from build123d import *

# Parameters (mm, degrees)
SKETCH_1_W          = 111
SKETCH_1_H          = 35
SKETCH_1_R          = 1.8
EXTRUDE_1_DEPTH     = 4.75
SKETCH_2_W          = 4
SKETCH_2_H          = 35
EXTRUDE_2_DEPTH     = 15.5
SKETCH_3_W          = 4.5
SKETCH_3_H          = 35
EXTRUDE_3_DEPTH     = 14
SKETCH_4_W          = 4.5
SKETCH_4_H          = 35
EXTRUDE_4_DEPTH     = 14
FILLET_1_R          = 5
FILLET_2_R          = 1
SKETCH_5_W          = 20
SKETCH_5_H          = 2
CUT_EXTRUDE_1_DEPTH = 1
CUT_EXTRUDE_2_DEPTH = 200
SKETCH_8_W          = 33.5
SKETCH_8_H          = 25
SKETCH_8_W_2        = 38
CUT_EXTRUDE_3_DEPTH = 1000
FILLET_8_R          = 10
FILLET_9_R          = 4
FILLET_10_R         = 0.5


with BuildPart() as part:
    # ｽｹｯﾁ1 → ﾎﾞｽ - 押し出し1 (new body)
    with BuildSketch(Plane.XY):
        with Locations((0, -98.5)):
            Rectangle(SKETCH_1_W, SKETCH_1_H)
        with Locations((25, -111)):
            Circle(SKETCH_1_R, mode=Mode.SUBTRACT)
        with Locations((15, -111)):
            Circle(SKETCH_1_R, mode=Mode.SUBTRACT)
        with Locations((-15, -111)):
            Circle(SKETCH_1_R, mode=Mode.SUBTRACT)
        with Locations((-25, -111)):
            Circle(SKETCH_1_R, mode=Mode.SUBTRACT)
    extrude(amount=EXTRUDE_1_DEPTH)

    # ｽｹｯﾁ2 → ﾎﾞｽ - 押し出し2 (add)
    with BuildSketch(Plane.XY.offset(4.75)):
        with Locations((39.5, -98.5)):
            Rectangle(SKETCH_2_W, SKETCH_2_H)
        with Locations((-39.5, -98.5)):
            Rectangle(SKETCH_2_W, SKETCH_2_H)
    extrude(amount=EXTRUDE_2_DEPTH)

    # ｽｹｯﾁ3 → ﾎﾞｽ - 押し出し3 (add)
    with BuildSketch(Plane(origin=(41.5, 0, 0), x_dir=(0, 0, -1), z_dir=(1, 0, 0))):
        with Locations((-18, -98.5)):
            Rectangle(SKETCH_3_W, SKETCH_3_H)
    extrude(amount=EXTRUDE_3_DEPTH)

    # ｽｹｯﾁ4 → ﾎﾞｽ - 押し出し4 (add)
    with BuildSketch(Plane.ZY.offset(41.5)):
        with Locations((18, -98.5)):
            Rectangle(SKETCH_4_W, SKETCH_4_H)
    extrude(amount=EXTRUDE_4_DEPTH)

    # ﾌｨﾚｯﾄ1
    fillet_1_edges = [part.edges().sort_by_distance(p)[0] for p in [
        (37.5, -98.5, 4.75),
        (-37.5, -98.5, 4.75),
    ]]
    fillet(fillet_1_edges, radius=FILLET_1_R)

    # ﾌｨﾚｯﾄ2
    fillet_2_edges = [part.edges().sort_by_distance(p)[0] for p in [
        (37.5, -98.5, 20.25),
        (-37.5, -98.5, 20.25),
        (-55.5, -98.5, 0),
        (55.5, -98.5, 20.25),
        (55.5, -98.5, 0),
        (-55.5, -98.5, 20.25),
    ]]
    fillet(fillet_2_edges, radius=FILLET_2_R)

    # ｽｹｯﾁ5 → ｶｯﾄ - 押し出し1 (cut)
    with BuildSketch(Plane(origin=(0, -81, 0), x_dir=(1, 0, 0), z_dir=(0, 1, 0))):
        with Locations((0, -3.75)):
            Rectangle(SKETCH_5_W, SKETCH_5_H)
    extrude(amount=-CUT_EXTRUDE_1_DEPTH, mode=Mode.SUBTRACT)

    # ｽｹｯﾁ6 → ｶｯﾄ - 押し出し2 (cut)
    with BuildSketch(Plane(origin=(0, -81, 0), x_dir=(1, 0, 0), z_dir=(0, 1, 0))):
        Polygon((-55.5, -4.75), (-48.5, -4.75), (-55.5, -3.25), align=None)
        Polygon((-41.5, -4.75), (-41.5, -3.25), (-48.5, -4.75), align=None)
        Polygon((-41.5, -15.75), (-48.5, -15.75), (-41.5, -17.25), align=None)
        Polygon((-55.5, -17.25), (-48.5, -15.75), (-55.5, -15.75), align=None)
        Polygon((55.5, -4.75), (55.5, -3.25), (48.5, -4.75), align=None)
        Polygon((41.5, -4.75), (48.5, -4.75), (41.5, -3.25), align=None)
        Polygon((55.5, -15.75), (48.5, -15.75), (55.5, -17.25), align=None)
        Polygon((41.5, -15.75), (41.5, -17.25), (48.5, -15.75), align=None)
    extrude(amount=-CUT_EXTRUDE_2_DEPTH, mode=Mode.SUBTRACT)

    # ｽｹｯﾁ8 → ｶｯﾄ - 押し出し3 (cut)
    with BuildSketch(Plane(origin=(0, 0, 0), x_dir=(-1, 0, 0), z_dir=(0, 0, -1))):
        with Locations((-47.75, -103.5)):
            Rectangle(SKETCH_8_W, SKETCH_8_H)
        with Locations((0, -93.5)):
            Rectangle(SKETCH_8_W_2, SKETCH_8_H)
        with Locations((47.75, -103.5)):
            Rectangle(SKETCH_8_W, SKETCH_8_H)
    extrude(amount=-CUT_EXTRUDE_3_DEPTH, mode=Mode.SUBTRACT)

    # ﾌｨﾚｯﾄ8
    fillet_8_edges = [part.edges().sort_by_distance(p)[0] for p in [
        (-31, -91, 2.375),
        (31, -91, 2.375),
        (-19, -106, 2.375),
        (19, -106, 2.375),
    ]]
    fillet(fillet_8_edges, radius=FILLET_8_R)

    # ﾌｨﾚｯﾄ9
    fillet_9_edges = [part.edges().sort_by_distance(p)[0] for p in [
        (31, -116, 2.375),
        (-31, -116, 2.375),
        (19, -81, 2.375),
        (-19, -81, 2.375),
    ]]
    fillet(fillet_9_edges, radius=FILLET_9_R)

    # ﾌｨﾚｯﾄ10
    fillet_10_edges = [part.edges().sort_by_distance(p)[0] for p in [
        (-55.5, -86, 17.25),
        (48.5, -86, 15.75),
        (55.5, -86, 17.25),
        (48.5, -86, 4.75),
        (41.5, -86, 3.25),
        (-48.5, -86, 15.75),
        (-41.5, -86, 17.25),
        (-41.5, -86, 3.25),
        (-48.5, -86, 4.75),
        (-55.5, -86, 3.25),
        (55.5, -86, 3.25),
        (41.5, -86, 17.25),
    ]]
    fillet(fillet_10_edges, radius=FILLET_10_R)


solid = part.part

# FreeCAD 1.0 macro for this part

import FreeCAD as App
import Part
import Sketcher


def edges_at(feature, points):
    """Names of the edges that pass closest to the given points."""
    edges = feature.Shape.Edges
    near = lambda p: min(range(len(edges)), key=lambda i: edges[i].distToShape(Part.Vertex(*p))[0])
    return sorted({f"Edge{near(p) + 1}" for p in points})


def add_polygon(sketch, points):
    """Adds a closed chain of lines whose ends are joined by coincident constraints."""
    first, n = sketch.GeometryCount, len(points)
    for a, b in zip(points, points[1:] + points[:1]):
        sketch.addGeometry(Part.LineSegment(App.Vector(*a, 0), App.Vector(*b, 0)), False)
    for i in range(n):
        sketch.addConstraint(Sketcher.Constraint("Coincident", first + i, 2, first + (i + 1) % n, 1))

doc = App.newDocument("Part")
body = doc.addObject("PartDesign::Body", "Body")

# Sketch on XY plane
sketch1 = body.newObject("Sketcher::SketchObject", "Sketch")
sketch1.AttachmentSupport = (doc.getObject("XY_Plane"), [""])
sketch1.MapMode = "FlatFace"
add_polygon(sketch1, [(-55.5, -81), (-55.5, -116), (55.5, -116), (55.5, -81)])  # lines 0-3
sketch1.addGeometry(Part.Circle(App.Vector(-25, -111, 0), App.Vector(0, 0, 1), 1.8), False)  # 4
sketch1.addGeometry(Part.Circle(App.Vector(-15, -111, 0), App.Vector(0, 0, 1), 1.8), False)  # 5
sketch1.addGeometry(Part.Circle(App.Vector(15, -111, 0), App.Vector(0, 0, 1), 1.8), False)  # 6
sketch1.addGeometry(Part.Circle(App.Vector(25, -111, 0), App.Vector(0, 0, 1), 1.8), False)  # 7
sketch1.addConstraint(Sketcher.Constraint("Vertical", 0))
sketch1.addConstraint(Sketcher.Constraint("Horizontal", 1))
sketch1.addConstraint(Sketcher.Constraint("Vertical", 2))
sketch1.addConstraint(Sketcher.Constraint("Horizontal", 3))
sketch1.addConstraint(Sketcher.Constraint("Equal", 4, 5))
sketch1.addConstraint(Sketcher.Constraint("Equal", 5, 6))
sketch1.addConstraint(Sketcher.Constraint("Equal", 6, 7))
sketch1.addConstraint(Sketcher.Constraint("Symmetric", 5, 3, 6, 3, -2))
sketch1.addConstraint(Sketcher.Constraint("Symmetric", 4, 3, 7, 3, -2))
sketch1.addConstraint(Sketcher.Constraint("Horizontal", 4, 3, 5, 3))
sketch1.addConstraint(Sketcher.Constraint("Diameter", 4, 3.6))
sketch1.addConstraint(Sketcher.Constraint("DistanceX", 1, 1, 1, 2, 111.0))
sketch1.addConstraint(Sketcher.Constraint("DistanceY", 0, 2, 0, 1, 35.0))
sketch1.addConstraint(Sketcher.Constraint("DistanceX", 4, 3, -1, 1, 25.0))
sketch1.addConstraint(Sketcher.Constraint("DistanceY", 4, 3, -1, 1, 111.0))
sketch1.addConstraint(Sketcher.Constraint("DistanceX", 5, 3, -1, 1, 15.0))
sketch1.addConstraint(Sketcher.Constraint("DistanceY", 0, 2, -1, 1, 116.0))
sketch1.addConstraint(Sketcher.Constraint("DistanceX", 0, 2, -1, 1, 55.5))
pad1 = body.newObject("PartDesign::Pad", "Pad")
pad1.Profile = sketch1
pad1.Length = 4.75

# Sketch on XY plane
sketch2 = body.newObject("Sketcher::SketchObject", "Sketch001")
sketch2.AttachmentSupport = (doc.getObject("XY_Plane"), [""])
sketch2.MapMode = "FlatFace"
sketch2.AttachmentOffset = App.Placement(App.Vector(0, 0, 4.75), App.Rotation())
add_polygon(sketch2, [(37.5, -81), (37.5, -116), (41.5, -116), (41.5, -81)])  # lines 0-3
add_polygon(sketch2, [(-41.5, -81), (-41.5, -116), (-37.5, -116), (-37.5, -81)])  # lines 4-7
sketch2.addConstraint(Sketcher.Constraint("Vertical", 0))
sketch2.addConstraint(Sketcher.Constraint("Horizontal", 1))
sketch2.addConstraint(Sketcher.Constraint("Vertical", 2))
sketch2.addConstraint(Sketcher.Constraint("Horizontal", 3))
sketch2.addConstraint(Sketcher.Constraint("Vertical", 4))
sketch2.addConstraint(Sketcher.Constraint("Horizontal", 5))
sketch2.addConstraint(Sketcher.Constraint("Vertical", 6))
sketch2.addConstraint(Sketcher.Constraint("Horizontal", 7))
sketch2.addConstraint(Sketcher.Constraint("Symmetric", 1, 2, 4, 2, -2))
sketch2.addConstraint(Sketcher.Constraint("Symmetric", 3, 2, 6, 2, -2))
sketch2.addConstraint(Sketcher.Constraint("DistanceX", 1, 1, 1, 2, 4.0))
sketch2.addConstraint(Sketcher.Constraint("DistanceY", 0, 2, 0, 1, 35.0))
sketch2.addConstraint(Sketcher.Constraint("DistanceY", 0, 2, -1, 1, 116.0))
sketch2.addConstraint(Sketcher.Constraint("DistanceX", 4, 2, 0, 2, 79.0))
pad2 = body.newObject("PartDesign::Pad", "Pad001")
pad2.Profile = sketch2
pad2.Length = 15.5

# Sketch on YZ plane
sketch3 = body.newObject("Sketcher::SketchObject", "Sketch002")
sketch3.AttachmentSupport = (doc.getObject("YZ_Plane"), [""])
sketch3.MapMode = "FlatFace"
sketch3.AttachmentOffset = App.Placement(App.Vector(0, 0, 41.5), App.Rotation())
add_polygon(sketch3, [(-81, 20.25), (-116, 20.25), (-116, 15.75), (-81, 15.75)])  # lines 0-3
sketch3.addConstraint(Sketcher.Constraint("Horizontal", 0))
sketch3.addConstraint(Sketcher.Constraint("Vertical", 1))
sketch3.addConstraint(Sketcher.Constraint("Horizontal", 2))
sketch3.addConstraint(Sketcher.Constraint("Vertical", 3))
sketch3.addConstraint(Sketcher.Constraint("DistanceX", 0, 2, 0, 1, 35.0))
sketch3.addConstraint(Sketcher.Constraint("DistanceY", 1, 2, 1, 1, 4.5))
sketch3.addConstraint(Sketcher.Constraint("DistanceX", 0, 2, -1, 1, 116.0))
sketch3.addConstraint(Sketcher.Constraint("DistanceY", -1, 1, 0, 2, 20.25))
pad3 = body.newObject("PartDesign::Pad", "Pad002")
pad3.Profile = sketch3
pad3.Length = 14

# Sketch on YZ plane
sketch4 = body.newObject("Sketcher::SketchObject", "Sketch003")
sketch4.AttachmentSupport = (doc.getObject("YZ_Plane"), [""])
sketch4.MapMode = "FlatFace"
sketch4.AttachmentOffset = App.Placement(App.Vector(0, 0, -41.5), App.Rotation())
add_polygon(sketch4, [(-81, 15.75), (-116, 15.75), (-116, 20.25), (-81, 20.25)])  # lines 0-3
sketch4.addConstraint(Sketcher.Constraint("Horizontal", 0))
sketch4.addConstraint(Sketcher.Constraint("Vertical", 1))
sketch4.addConstraint(Sketcher.Constraint("Horizontal", 2))
sketch4.addConstraint(Sketcher.Constraint("Vertical", 3))
sketch4.addConstraint(Sketcher.Constraint("DistanceX", 0, 2, 0, 1, 35.0))
sketch4.addConstraint(Sketcher.Constraint("DistanceY", 1, 1, 1, 2, 4.5))
sketch4.addConstraint(Sketcher.Constraint("DistanceX", 0, 2, -1, 1, 116.0))
sketch4.addConstraint(Sketcher.Constraint("DistanceY", -1, 1, 0, 2, 15.75))
pad4 = body.newObject("PartDesign::Pad", "Pad003")
pad4.Profile = sketch4
pad4.Length = 14
pad4.Reversed = True
doc.recompute()

fillet = body.newObject("PartDesign::Fillet", "Fillet")
fillet.Base = (pad4, edges_at(pad4, [(37.5, -98.5, 4.75), (-37.5, -98.5, 4.75)]))
fillet.Radius = 5
doc.recompute()

fillet2 = body.newObject("PartDesign::Fillet", "Fillet001")
fillet2.Base = (fillet, edges_at(fillet, [
    (37.5, -98.5, 20.25),
    (-37.5, -98.5, 20.25),
    (-55.5, -98.5, 0),
    (55.5, -98.5, 20.25),
    (55.5, -98.5, 0),
    (-55.5, -98.5, 20.25),
]))
fillet2.Radius = 1

# Sketch on XZ plane
sketch5 = body.newObject("Sketcher::SketchObject", "Sketch004")
sketch5.AttachmentSupport = (doc.getObject("XZ_Plane"), [""])
sketch5.MapMode = "FlatFace"
sketch5.AttachmentOffset = App.Placement(App.Vector(0, 0, 81), App.Rotation())
add_polygon(sketch5, [(-10, 2.75), (-10, 4.75), (10, 4.75), (10, 2.75)])  # lines 0-3
sketch5.addConstraint(Sketcher.Constraint("Vertical", 0))
sketch5.addConstraint(Sketcher.Constraint("Horizontal", 1))
sketch5.addConstraint(Sketcher.Constraint("Vertical", 2))
sketch5.addConstraint(Sketcher.Constraint("Horizontal", 3))
sketch5.addConstraint(Sketcher.Constraint("DistanceX", 1, 1, 1, 2, 20.0))
sketch5.addConstraint(Sketcher.Constraint("DistanceY", 0, 1, 0, 2, 2.0))
sketch5.addConstraint(Sketcher.Constraint("DistanceX", 0, 2, -1, 1, 10.0))
sketch5.addConstraint(Sketcher.Constraint("DistanceY", -1, 1, 0, 2, 4.75))
pocket1 = body.newObject("PartDesign::Pocket", "Pocket")
pocket1.Profile = sketch5
pocket1.Length = 1
pocket1.Reversed = True

# Sketch on XZ plane
sketch6 = body.newObject("Sketcher::SketchObject", "Sketch005")
sketch6.AttachmentSupport = (doc.getObject("XZ_Plane"), [""])
sketch6.MapMode = "FlatFace"
sketch6.AttachmentOffset = App.Placement(App.Vector(0, 0, 81), App.Rotation())
add_polygon(sketch6, [(-55.5, 4.75), (-48.5, 4.75), (-55.5, 3.25)])  # lines 0-2
add_polygon(sketch6, [(-41.5, 4.75), (-41.5, 3.25), (-48.5, 4.75)])  # lines 3-5
add_polygon(sketch6, [(-41.5, 15.75), (-48.5, 15.75), (-41.5, 17.25)])  # lines 6-8
add_polygon(sketch6, [(-55.5, 17.25), (-48.5, 15.75), (-55.5, 15.75)])  # lines 9-11
add_polygon(sketch6, [(55.5, 4.75), (55.5, 3.25), (48.5, 4.75)])  # lines 12-14
add_polygon(sketch6, [(41.5, 4.75), (48.5, 4.75), (41.5, 3.25)])  # lines 15-17
add_polygon(sketch6, [(55.5, 15.75), (48.5, 15.75), (55.5, 17.25)])  # lines 18-20
add_polygon(sketch6, [(41.5, 15.75), (41.5, 17.25), (48.5, 15.75)])  # lines 21-23
sketch6.addConstraint(Sketcher.Constraint("Horizontal", 0))
sketch6.addConstraint(Sketcher.Constraint("Vertical", 2))
sketch6.addConstraint(Sketcher.Constraint("Vertical", 3))
sketch6.addConstraint(Sketcher.Constraint("Horizontal", 5))
sketch6.addConstraint(Sketcher.Constraint("Horizontal", 6))
sketch6.addConstraint(Sketcher.Constraint("Vertical", 8))
sketch6.addConstraint(Sketcher.Constraint("Horizontal", 10))
sketch6.addConstraint(Sketcher.Constraint("Vertical", 11))
sketch6.addConstraint(Sketcher.Constraint("Vertical", 12))
sketch6.addConstraint(Sketcher.Constraint("Horizontal", 14))
sketch6.addConstraint(Sketcher.Constraint("Horizontal", 15))
sketch6.addConstraint(Sketcher.Constraint("Vertical", 17))
sketch6.addConstraint(Sketcher.Constraint("Horizontal", 18))
sketch6.addConstraint(Sketcher.Constraint("Vertical", 20))
sketch6.addConstraint(Sketcher.Constraint("Vertical", 21))
sketch6.addConstraint(Sketcher.Constraint("Horizontal", 23))
sketch6.addConstraint(Sketcher.Constraint("Coincident", 4, 2, 0, 2))
sketch6.addConstraint(Sketcher.Constraint("Coincident", 9, 2, 6, 2))
sketch6.addConstraint(Sketcher.Constraint("Coincident", 15, 2, 13, 2))
sketch6.addConstraint(Sketcher.Constraint("Coincident", 22, 2, 18, 2))
sketch6.addConstraint(Sketcher.Constraint("Symmetric", 1, 2, 12, 2, -2))
sketch6.addConstraint(Sketcher.Constraint("Symmetric", 0, 2, 13, 2, -2))
sketch6.addConstraint(Sketcher.Constraint("Symmetric", 3, 2, 16, 2, -2))
sketch6.addConstraint(Sketcher.Constraint("Symmetric", 6, 2, 18, 2, -2))
sketch6.addConstraint(Sketcher.Constraint("Symmetric", 11, 2, 19, 2, -2))
sketch6.addConstraint(Sketcher.Constraint("Symmetric", 7, 2, 21, 2, -2))
sketch6.addConstraint(Sketcher.Constraint("Parallel", 1, 7))
sketch6.addConstraint(Sketcher.Constraint("Parallel", 4, 9))
sketch6.addConstraint(Sketcher.Constraint("Parallel", 9, 13))
sketch6.addConstraint(Sketcher.Constraint("Horizontal", 1, 2, 3, 2))
sketch6.addConstraint(Sketcher.Constraint("Horizontal", 7, 2, 11, 2))
sketch6.addConstraint(Sketcher.Constraint("Vertical", 4, 2, 6, 2))
sketch6.addConstraint(Sketcher.Constraint("Vertical", 5, 2, 7, 2))
sketch6.addConstraint(Sketcher.Constraint("DistanceX", 0, 1, 0, 2, 7.0))
sketch6.addConstraint(Sketcher.Constraint("DistanceY", 2, 1, 2, 2, 1.5))
sketch6.addConstraint(Sketcher.Constraint("DistanceY", 0, 2, 6, 2, 11.0))
sketch6.addConstraint(Sketcher.Constraint("DistanceX", 3, 2, 12, 2, 97.0))
sketch6.addConstraint(Sketcher.Constraint("DistanceY", -1, 1, 0, 2, 4.75))
pocket2 = body.newObject("PartDesign::Pocket", "Pocket001")
pocket2.Profile = sketch6
pocket2.Length = 200
pocket2.Reversed = True

# Sketch on XY plane
sketch7 = body.newObject("Sketcher::SketchObject", "Sketch006")
sketch7.AttachmentSupport = (doc.getObject("XY_Plane"), [""])
sketch7.MapMode = "FlatFace"
add_polygon(sketch7, [(64.5, -91), (64.5, -116), (31, -116), (31, -91)])  # lines 0-3
add_polygon(sketch7, [(19, -81), (19, -106), (-19, -106), (-19, -81)])  # lines 4-7
add_polygon(sketch7, [(-31, -91), (-31, -116), (-64.5, -116), (-64.5, -91)])  # lines 8-11
sketch7.addConstraint(Sketcher.Constraint("Vertical", 0))
sketch7.addConstraint(Sketcher.Constraint("Horizontal", 1))
sketch7.addConstraint(Sketcher.Constraint("Vertical", 2))
sketch7.addConstraint(Sketcher.Constraint("Horizontal", 3))
sketch7.addConstraint(Sketcher.Constraint("Vertical", 4))
sketch7.addConstraint(Sketcher.Constraint("Horizontal", 5))
sketch7.addConstraint(Sketcher.Constraint("Vertical", 6))
sketch7.addConstraint(Sketcher.Constraint("Horizontal", 7))
sketch7.addConstraint(Sketcher.Constraint("Vertical", 8))
sketch7.addConstraint(Sketcher.Constraint("Horizontal", 9))
sketch7.addConstraint(Sketcher.Constraint("Vertical", 10))
sketch7.addConstraint(Sketcher.Constraint("Horizontal", 11))
sketch7.addConstraint(Sketcher.Constraint("Symmetric", 1, 2, 8, 2, -2))
sketch7.addConstraint(Sketcher.Constraint("Symmetric", 3, 2, 10, 2, -2))
sketch7.addConstraint(Sketcher.Constraint("Equal", 2, 4))
sketch7.addConstraint(Sketcher.Constraint("DistanceX", 5, 2, 5, 1, 38.0))
sketch7.addConstraint(Sketcher.Constraint("DistanceY", 0, 2, 0, 1, 25.0))
sketch7.addConstraint(Sketcher.Constraint("DistanceX", 1, 2, 1, 1, 33.5))
sketch7.addConstraint(Sketcher.Constraint("DistanceY", 0, 2, -1, 1, 116.0))
sketch7.addConstraint(Sketcher.Constraint("DistanceX", -1, 1, 1, 2, 31.0))
sketch7.addConstraint(Sketcher.Constraint("DistanceX", -1, 1, 4, 2, 19.0))
sketch7.addConstraint(Sketcher.Constraint("DistanceY", 4, 2, -1, 1, 106.0))
pocket3 = body.newObject("PartDesign::Pocket", "Pocket002")
pocket3.Profile = sketch7
pocket3.Length = 1000
pocket3.Reversed = True
doc.recompute()

fillet3 = body.newObject("PartDesign::Fillet", "Fillet002")
fillet3.Base = (pocket3, edges_at(pocket3, [
    (-31, -91, 2.375),
    (31, -91, 2.375),
    (-19, -106, 2.375),
    (19, -106, 2.375),
]))
fillet3.Radius = 10
doc.recompute()

fillet4 = body.newObject("PartDesign::Fillet", "Fillet003")
fillet4.Base = (fillet3, edges_at(fillet3, [
    (31, -116, 2.375),
    (-31, -116, 2.375),
    (19, -81, 2.375),
    (-19, -81, 2.375),
]))
fillet4.Radius = 4
doc.recompute()

fillet5 = body.newObject("PartDesign::Fillet", "Fillet004")
fillet5.Base = (fillet4, edges_at(fillet4, [
    (-55.5, -86, 17.25),
    (48.5, -86, 15.75),
    (55.5, -86, 17.25),
    (48.5, -86, 4.75),
    (41.5, -86, 3.25),
    (-48.5, -86, 15.75),
    (-41.5, -86, 17.25),
    (-41.5, -86, 3.25),
    (-48.5, -86, 4.75),
    (-55.5, -86, 3.25),
    (55.5, -86, 3.25),
    (41.5, -86, 17.25),
]))
fillet5.Radius = 0.5

doc.recompute()
